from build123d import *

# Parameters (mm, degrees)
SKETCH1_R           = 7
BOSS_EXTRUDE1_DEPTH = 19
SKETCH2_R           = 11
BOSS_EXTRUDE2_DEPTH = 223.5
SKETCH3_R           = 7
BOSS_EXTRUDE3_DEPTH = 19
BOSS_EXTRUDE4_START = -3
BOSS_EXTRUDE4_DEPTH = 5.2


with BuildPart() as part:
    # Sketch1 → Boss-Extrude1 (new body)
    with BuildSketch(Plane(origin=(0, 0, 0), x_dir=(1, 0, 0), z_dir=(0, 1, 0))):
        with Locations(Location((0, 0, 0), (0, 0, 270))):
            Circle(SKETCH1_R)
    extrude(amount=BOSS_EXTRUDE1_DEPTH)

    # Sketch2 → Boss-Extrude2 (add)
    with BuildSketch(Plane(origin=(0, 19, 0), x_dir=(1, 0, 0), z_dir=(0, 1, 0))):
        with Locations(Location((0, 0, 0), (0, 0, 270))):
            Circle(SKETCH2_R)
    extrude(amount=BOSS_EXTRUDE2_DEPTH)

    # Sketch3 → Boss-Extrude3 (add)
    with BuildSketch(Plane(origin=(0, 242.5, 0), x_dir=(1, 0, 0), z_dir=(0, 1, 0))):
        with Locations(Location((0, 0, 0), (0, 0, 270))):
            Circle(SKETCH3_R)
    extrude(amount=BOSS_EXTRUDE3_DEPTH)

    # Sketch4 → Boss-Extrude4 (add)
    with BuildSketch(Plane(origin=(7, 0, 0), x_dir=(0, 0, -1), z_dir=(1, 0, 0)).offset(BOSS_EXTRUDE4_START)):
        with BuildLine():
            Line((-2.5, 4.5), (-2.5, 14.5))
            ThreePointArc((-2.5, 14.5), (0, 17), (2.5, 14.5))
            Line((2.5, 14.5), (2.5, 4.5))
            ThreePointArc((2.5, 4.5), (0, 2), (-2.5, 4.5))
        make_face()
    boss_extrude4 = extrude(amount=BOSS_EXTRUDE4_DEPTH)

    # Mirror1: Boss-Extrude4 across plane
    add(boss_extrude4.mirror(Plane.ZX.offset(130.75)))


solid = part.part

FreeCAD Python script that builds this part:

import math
import FreeCAD as App
import Part
import Sketcher
Q = App.Units.Quantity

doc = App.newDocument("Part")
params = doc.addObject("Spreadsheet::Sheet", "Params")
for row, (alias, value) in enumerate([
    ("sketch1_diameter", "14 mm"),
    ("pad1_length", "19 mm"),
    ("sketch2_diameter", "22 mm"),
    ("pad2_length", "223.5 mm"),
    ("sketch3_diameter", "14 mm"),
    ("pad3_length", "19 mm"),
    ("sketch4_radius", "2.5 mm"),
    ("sketch4_width", "10 mm"),
    ("pad4_length", "5.2 mm"),
], start=1):
    params.set(f"A{row}", alias)
    params.set(f"B{row}", "=" + value)
    params.setAlias(f"B{row}", alias)

body = doc.addObject("PartDesign::Body", "Body")

sketch1 = doc.addObject("Sketcher::SketchObject", "Sketch")
body.addObject(sketch1)
sketch1.AttachmentSupport = (doc.XZ_Plane, [""])
sketch1.MapMode = "FlatFace"
sketch1.addGeometry(Part.Circle(App.Vector(0, 0, 0), App.Vector(0, 0, 1), 7), False)
sketch1.addConstraint(Sketcher.Constraint("Coincident", 0, 3, -1, 1))
sketch1.addConstraint(Sketcher.Constraint("Diameter", 0, Q("14 mm")))
sketch1.setExpression("Constraints[1]", "Params.sketch1_diameter")
pad1 = doc.addObject("PartDesign::Pad", "Pad")
body.addObject(pad1)
pad1.Profile = sketch1
pad1.setExpression("Length", "Params.pad1_length")
pad1.Reversed = True

sketch2 = doc.addObject("Sketcher::SketchObject", "Sketch001")
body.addObject(sketch2)
sketch2.AttachmentSupport = (doc.XZ_Plane, [""])
sketch2.MapMode = "FlatFace"
sketch2.AttachmentOffset = App.Placement(App.Vector(0, 0, -19), App.Rotation())
sketch2.addGeometry(Part.Circle(App.Vector(0, 0, 0), App.Vector(0, 0, 1), 11), False)
sketch2.addConstraint(Sketcher.Constraint("Coincident", 0, 3, -1, 1))
sketch2.addConstraint(Sketcher.Constraint("Diameter", 0, Q("22 mm")))
sketch2.setExpression("Constraints[1]", "Params.sketch2_diameter")
pad2 = doc.addObject("PartDesign::Pad", "Pad001")
body.addObject(pad2)
pad2.Profile = sketch2
pad2.setExpression("Length", "Params.pad2_length")
pad2.Reversed = True

sketch3 = doc.addObject("Sketcher::SketchObject", "Sketch002")
body.addObject(sketch3)
sketch3.AttachmentSupport = (doc.XZ_Plane, [""])
sketch3.MapMode = "FlatFace"
sketch3.AttachmentOffset = App.Placement(App.Vector(0, 0, -242.5), App.Rotation())
sketch3.addGeometry(Part.Circle(App.Vector(0, 0, 0), App.Vector(0, 0, 1), 7), False)
sketch3.addConstraint(Sketcher.Constraint("Coincident", 0, 3, -1, 1))
sketch3.addConstraint(Sketcher.Constraint("Diameter", 0, Q("14 mm")))
sketch3.setExpression("Constraints[1]", "Params.sketch3_diameter")
pad3 = doc.addObject("PartDesign::Pad", "Pad002")
body.addObject(pad3)
pad3.Profile = sketch3
pad3.setExpression("Length", "Params.pad3_length")
pad3.Reversed = True

sketch4 = doc.addObject("Sketcher::SketchObject", "Sketch003")
body.addObject(sketch4)
sketch4.AttachmentSupport = (doc.YZ_Plane, [""])
sketch4.MapMode = "FlatFace"
sketch4.AttachmentOffset = App.Placement(App.Vector(0, 0, 4), App.Rotation())
sketch4.addGeometry(Part.LineSegment(App.Vector(14.5, 2.5, 0), App.Vector(4.5, 2.5, 0)), False)
sketch4.addGeometry(Part.ArcOfCircle(Part.Circle(App.Vector(4.5, 0, 0), App.Vector(0, 0, 1), 2.5), math.radians(90), math.radians(270)), False)
sketch4.addGeometry(Part.LineSegment(App.Vector(4.5, -2.5, 0), App.Vector(14.5, -2.5, 0)), False)
sketch4.addGeometry(Part.ArcOfCircle(Part.Circle(App.Vector(14.5, 0, 0), App.Vector(0, 0, 1), 2.5), math.radians(-90), math.radians(90)), False)
sketch4.addConstraint(Sketcher.Constraint("Tangent", 0, 2, 1, 1))
sketch4.addConstraint(Sketcher.Constraint("Tangent", 1, 2, 2, 1))
sketch4.addConstraint(Sketcher.Constraint("Tangent", 2, 2, 3, 1))
sketch4.addConstraint(Sketcher.Constraint("Tangent", 3, 2, 0, 1))
sketch4.addConstraint(Sketcher.Constraint("Horizontal", 0))
sketch4.addConstraint(Sketcher.Constraint("Horizontal", 2))
sketch4.addConstraint(Sketcher.Constraint("PointOnObject", 1, 3, -1))
sketch4.addConstraint(Sketcher.Constraint("Radius", 1, Q("2.5 mm")))
sketch4.addConstraint(Sketcher.Constraint("DistanceX", 0, 2, 0, 1, Q("10 mm")))
sketch4.addConstraint(Sketcher.Constraint("DistanceX", -1, 1, 1, 3, Q("4.5 mm")))
sketch4.setExpression("Constraints[7]", "Params.sketch4_radius")
sketch4.setExpression("Constraints[8]", "Params.sketch4_width")
pad4 = doc.addObject("PartDesign::Pad", "Pad003")
body.addObject(pad4)
pad4.Profile = sketch4
pad4.setExpression("Length", "Params.pad4_length")
doc.recompute()

datumplane = doc.addObject("PartDesign::Plane", "DatumPlane")
body.addObject(datumplane)
datumplane.AttachmentSupport = (doc.XZ_Plane, [""])
datumplane.MapMode = "FlatFace"
datumplane.AttachmentOffset = App.Placement(App.Vector(0, 0, -130.75), App.Rotation())
mirrored = doc.addObject("PartDesign::Mirrored", "Mirrored")
body.addObject(mirrored)
mirrored.Originals = [pad4]
mirrored.MirrorPlane = (datumplane, [""])
body.Tip = mirrored

doc.recompute()
